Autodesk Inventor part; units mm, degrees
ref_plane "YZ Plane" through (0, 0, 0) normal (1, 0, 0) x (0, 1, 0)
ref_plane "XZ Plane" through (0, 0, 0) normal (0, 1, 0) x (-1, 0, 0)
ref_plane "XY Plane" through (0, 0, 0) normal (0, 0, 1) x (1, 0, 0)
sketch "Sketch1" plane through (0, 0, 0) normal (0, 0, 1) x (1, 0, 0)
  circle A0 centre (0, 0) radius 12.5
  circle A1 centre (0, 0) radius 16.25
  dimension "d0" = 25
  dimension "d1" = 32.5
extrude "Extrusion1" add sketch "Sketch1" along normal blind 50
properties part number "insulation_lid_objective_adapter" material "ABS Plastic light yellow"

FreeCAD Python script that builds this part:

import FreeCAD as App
import Part
import Sketcher

doc = App.newDocument("Part")
params = doc.addObject("Spreadsheet::Sheet", "Params")
for row, (alias, value) in enumerate([
    ("sketch1_diameter", "25 mm"),
    ("sketch1_diameter2", "32.5 mm"),
    ("pad1_length", "50 mm"),
], start=1):
    params.set(f"A{row}", alias)
    params.set(f"B{row}", "=" + value)
    params.setAlias(f"B{row}", alias)

body = doc.addObject("PartDesign::Body", "Body")

# Sketch on XY plane
sketch1 = body.newObject("Sketcher::SketchObject", "Sketch")
sketch1.AttachmentSupport = (doc.getObject("XY_Plane"), [""])
sketch1.MapMode = "FlatFace"
sketch1.addGeometry([
    Part.Circle(App.Vector(0, 0, 0), App.Vector(0, 0, 1), 16),
    Part.Circle(App.Vector(0, 0, 0), App.Vector(0, 0, 1), 12),
], False)
sketch1.addConstraint([
    Sketcher.Constraint("Coincident", 0, 3, -1, 1),
    Sketcher.Constraint("Coincident", 1, 3, -1, 1),
    Sketcher.Constraint("Diameter", 1, 25.0),
    Sketcher.Constraint("Diameter", 0, 32.5),
])
sketch1.setExpression("Constraints[2]", "Params.sketch1_diameter")
sketch1.setExpression("Constraints[3]", "Params.sketch1_diameter2")
pad1 = body.newObject("PartDesign::Pad", "Pad")
pad1.Profile = sketch1
pad1.setExpression("Length", "Params.pad1_length")

doc.recompute()
